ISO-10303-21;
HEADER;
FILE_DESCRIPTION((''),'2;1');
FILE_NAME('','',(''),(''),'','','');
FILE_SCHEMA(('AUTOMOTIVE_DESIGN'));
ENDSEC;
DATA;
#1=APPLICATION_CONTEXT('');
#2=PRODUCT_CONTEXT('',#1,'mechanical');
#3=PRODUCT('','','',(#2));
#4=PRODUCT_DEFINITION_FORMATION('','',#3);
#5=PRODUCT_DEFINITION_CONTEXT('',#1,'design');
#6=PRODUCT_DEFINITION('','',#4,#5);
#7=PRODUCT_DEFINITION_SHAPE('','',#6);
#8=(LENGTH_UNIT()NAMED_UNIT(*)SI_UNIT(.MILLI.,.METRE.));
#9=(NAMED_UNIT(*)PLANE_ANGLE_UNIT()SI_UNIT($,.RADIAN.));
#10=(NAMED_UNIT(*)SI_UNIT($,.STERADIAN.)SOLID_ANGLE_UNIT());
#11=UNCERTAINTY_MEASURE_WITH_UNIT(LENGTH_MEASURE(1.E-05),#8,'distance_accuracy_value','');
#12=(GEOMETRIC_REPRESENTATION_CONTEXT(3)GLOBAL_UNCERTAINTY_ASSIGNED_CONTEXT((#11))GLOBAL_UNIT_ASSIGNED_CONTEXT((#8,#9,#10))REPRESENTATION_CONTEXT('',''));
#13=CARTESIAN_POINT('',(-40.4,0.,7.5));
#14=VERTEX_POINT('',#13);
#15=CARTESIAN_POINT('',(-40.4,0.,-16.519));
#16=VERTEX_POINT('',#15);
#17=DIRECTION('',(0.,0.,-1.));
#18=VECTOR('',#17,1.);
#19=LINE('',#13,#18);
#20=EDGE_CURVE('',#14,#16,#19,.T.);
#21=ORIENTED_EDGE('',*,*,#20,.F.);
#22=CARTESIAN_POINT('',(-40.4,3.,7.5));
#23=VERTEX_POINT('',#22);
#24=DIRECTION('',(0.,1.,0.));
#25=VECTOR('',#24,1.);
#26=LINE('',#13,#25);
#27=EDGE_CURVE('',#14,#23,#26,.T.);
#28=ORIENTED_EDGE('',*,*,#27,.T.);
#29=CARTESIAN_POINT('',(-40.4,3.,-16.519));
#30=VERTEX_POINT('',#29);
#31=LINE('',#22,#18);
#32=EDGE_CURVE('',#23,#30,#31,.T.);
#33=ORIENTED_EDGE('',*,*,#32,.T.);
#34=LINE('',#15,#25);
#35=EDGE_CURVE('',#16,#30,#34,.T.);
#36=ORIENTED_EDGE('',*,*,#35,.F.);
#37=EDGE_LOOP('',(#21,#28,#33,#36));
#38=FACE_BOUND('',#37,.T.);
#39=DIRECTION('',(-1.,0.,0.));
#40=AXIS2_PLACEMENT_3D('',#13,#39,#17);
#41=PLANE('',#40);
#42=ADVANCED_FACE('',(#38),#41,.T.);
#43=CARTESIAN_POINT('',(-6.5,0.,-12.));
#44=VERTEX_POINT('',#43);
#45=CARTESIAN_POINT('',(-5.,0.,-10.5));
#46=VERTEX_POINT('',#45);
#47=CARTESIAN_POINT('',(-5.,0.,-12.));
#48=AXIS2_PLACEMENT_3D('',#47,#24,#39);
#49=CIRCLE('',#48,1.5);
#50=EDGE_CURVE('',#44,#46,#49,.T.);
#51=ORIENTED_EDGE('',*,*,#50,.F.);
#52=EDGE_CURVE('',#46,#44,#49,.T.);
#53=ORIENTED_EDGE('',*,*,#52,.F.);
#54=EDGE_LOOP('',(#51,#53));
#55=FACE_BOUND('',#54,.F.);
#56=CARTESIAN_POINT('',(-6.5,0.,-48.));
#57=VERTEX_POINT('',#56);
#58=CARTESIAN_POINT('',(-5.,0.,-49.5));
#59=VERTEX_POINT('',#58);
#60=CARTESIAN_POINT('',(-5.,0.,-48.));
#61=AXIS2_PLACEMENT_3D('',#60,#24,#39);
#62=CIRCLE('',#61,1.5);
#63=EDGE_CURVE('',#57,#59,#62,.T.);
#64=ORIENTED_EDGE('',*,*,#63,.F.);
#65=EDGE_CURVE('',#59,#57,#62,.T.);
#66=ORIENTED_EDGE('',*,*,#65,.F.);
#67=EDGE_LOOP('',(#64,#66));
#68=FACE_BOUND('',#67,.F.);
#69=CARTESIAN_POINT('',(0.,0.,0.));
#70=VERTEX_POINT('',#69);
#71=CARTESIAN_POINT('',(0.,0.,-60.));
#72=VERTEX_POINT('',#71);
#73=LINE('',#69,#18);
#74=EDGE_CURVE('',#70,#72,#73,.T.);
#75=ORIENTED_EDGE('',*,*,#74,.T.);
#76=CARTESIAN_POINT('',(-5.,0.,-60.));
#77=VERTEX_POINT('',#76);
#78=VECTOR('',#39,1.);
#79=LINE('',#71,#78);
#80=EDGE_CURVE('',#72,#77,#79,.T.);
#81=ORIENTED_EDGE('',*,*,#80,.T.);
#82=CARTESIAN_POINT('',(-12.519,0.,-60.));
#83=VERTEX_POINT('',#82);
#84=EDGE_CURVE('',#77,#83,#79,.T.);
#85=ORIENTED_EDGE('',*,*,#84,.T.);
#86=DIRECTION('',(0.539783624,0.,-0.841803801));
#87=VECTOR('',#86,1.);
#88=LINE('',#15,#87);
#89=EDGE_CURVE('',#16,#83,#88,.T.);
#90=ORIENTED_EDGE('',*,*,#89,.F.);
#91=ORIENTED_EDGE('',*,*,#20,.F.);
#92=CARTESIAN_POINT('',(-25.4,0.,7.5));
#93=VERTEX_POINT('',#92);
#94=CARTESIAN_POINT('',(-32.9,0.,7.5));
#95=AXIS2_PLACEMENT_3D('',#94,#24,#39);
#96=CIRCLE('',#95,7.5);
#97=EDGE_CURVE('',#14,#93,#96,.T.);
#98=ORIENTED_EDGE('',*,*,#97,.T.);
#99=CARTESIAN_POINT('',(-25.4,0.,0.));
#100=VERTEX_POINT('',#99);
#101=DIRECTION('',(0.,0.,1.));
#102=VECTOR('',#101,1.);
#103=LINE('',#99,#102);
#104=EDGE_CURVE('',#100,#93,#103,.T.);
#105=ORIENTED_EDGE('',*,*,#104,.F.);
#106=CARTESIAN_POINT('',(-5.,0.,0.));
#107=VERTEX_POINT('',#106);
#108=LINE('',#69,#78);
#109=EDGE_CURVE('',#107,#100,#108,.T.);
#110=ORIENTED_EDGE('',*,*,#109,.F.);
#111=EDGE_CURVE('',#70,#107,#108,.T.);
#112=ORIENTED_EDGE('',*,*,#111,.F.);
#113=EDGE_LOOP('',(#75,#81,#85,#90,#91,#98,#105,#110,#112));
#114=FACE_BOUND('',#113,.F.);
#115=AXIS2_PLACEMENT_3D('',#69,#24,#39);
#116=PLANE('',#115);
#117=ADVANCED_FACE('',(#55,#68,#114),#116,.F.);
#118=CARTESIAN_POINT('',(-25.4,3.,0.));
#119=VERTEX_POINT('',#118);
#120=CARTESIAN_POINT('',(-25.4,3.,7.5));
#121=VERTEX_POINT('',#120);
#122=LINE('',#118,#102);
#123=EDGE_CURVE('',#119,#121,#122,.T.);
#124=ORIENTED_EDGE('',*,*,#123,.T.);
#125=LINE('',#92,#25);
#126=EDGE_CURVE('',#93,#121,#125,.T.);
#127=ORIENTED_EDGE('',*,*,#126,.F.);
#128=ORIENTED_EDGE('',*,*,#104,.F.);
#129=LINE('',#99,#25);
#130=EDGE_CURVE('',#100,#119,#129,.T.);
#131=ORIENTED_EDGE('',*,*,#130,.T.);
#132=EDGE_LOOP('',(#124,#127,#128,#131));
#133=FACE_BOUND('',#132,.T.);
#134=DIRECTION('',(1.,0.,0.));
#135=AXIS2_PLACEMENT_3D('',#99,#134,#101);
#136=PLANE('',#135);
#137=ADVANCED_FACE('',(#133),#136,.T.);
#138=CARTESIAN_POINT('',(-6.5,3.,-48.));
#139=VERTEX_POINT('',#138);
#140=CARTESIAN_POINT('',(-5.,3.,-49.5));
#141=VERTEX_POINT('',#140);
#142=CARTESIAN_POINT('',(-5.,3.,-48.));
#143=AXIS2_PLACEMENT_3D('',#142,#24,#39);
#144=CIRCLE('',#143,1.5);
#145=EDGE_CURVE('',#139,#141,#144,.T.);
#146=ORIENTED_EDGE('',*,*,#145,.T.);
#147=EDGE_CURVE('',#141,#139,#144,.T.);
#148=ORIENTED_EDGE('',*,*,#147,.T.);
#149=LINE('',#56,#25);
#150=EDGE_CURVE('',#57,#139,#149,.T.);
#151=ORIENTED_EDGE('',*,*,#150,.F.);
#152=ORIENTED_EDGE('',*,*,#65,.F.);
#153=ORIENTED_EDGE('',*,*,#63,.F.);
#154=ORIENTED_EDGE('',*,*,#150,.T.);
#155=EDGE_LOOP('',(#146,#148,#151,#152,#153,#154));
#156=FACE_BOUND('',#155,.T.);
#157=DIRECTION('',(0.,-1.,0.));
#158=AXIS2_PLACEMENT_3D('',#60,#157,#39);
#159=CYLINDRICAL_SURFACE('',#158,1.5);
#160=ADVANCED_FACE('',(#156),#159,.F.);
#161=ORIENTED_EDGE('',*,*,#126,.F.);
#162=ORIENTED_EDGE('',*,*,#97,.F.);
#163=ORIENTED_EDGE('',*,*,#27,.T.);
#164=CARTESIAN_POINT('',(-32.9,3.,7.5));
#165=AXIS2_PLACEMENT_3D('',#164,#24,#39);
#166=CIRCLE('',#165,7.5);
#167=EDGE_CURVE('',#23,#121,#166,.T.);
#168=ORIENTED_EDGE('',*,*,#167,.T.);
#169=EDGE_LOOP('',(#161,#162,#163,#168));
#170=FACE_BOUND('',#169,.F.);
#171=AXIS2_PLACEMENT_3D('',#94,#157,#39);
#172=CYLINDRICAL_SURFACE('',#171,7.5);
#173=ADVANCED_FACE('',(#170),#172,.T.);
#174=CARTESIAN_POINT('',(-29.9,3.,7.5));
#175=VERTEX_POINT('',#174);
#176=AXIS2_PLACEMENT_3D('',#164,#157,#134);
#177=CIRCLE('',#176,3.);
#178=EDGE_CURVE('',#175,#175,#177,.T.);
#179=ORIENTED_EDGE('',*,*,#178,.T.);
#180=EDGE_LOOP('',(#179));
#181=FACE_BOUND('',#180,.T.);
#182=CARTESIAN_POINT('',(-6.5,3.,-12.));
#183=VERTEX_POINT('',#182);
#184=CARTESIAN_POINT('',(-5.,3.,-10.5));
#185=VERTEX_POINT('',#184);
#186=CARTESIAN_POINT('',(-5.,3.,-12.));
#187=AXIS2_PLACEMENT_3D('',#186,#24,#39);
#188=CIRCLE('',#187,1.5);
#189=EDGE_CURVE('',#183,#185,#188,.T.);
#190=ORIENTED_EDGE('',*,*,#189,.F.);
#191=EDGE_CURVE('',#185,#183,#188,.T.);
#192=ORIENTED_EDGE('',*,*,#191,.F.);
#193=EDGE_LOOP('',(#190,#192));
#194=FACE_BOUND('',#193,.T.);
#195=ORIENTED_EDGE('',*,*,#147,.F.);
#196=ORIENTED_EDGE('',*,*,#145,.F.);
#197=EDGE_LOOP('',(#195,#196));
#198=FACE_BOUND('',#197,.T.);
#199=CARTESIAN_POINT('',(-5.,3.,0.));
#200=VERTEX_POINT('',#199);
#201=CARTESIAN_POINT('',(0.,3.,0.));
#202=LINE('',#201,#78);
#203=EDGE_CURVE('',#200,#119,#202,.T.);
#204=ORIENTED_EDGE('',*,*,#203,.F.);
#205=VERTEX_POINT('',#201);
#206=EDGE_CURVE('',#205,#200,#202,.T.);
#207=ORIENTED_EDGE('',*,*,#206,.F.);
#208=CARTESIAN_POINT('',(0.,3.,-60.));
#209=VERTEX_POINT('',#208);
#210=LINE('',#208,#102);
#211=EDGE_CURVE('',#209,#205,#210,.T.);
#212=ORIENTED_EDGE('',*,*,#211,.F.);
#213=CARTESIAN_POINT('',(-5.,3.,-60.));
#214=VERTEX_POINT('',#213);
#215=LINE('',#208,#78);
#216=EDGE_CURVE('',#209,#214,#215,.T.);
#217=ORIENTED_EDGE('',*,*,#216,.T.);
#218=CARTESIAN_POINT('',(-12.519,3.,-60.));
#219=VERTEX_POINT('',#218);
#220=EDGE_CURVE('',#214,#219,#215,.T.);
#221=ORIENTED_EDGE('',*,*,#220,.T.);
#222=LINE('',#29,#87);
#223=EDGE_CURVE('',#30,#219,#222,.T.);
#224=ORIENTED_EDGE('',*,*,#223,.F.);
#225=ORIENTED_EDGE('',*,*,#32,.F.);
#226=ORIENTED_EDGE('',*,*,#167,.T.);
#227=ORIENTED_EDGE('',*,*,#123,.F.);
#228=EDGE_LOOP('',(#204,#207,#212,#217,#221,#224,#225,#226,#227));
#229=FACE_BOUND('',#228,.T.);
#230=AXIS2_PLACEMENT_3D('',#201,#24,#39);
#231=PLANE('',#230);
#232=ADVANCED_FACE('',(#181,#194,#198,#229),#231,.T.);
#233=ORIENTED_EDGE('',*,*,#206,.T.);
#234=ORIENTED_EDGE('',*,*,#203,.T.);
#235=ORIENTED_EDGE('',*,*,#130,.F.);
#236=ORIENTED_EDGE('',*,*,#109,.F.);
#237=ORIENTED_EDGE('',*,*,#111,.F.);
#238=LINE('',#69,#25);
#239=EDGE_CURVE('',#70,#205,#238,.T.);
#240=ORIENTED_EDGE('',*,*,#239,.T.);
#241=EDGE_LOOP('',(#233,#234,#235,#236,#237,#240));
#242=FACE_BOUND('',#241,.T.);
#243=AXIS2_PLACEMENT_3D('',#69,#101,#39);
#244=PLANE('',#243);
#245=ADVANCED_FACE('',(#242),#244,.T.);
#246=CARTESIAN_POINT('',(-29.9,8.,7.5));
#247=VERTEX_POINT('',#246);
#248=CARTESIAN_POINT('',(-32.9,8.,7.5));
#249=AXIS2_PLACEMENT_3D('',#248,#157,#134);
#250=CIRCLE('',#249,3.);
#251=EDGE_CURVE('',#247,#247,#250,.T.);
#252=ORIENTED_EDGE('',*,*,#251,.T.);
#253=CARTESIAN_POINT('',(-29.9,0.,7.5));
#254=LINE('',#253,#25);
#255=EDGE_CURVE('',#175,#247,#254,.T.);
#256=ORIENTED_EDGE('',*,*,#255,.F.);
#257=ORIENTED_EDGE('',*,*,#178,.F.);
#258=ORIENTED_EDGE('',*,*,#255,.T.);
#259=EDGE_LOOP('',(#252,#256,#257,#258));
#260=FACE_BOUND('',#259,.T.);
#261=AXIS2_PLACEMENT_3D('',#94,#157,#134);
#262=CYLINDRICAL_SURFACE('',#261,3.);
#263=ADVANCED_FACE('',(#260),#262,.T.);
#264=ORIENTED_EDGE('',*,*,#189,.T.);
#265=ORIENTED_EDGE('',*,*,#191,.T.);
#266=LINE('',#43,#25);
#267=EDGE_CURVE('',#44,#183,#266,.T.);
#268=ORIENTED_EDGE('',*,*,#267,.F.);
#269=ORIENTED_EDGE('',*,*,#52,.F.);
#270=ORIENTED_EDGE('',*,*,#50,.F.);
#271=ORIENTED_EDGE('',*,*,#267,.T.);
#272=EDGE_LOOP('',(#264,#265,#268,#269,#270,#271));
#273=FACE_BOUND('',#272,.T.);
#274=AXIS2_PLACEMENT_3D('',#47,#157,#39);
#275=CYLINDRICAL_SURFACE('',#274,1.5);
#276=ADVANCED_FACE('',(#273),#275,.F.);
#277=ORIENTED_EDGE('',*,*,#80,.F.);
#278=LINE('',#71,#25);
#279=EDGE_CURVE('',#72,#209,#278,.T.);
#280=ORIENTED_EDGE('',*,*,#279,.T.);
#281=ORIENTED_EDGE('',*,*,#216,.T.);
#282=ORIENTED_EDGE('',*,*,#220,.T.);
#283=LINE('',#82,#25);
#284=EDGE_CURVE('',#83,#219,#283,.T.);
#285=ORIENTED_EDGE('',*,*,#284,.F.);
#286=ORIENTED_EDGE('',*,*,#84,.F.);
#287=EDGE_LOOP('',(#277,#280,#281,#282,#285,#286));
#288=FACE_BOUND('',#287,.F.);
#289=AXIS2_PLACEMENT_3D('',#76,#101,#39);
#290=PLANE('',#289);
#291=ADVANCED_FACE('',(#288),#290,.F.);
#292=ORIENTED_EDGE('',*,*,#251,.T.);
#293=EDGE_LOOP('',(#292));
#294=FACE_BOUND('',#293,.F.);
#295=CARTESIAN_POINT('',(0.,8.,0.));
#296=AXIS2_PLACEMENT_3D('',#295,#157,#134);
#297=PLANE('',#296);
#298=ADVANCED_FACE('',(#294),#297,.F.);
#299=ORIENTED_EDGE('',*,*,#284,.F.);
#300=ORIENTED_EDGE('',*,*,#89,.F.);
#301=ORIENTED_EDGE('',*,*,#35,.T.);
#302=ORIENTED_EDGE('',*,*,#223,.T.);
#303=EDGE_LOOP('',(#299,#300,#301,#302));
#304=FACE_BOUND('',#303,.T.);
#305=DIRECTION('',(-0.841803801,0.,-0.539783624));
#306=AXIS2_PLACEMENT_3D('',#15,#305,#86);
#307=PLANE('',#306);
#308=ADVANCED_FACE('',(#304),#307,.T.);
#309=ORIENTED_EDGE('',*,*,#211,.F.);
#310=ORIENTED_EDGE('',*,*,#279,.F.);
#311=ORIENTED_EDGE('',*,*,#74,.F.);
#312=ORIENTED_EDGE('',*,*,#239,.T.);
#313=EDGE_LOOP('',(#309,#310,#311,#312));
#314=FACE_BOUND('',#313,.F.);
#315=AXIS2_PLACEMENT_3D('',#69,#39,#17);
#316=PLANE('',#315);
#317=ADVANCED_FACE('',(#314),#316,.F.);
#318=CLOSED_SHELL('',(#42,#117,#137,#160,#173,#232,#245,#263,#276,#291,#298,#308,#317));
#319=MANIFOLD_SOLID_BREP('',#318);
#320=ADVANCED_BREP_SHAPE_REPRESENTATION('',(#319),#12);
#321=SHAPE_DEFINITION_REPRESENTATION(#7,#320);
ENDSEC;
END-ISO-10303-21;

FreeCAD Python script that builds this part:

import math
import FreeCAD as App
import Part
import Sketcher
from FreeCAD import Vector

doc = App.newDocument("Part")
body = doc.addObject("PartDesign::Body", "Body")

sketch1 = body.newObject("Sketcher::SketchObject", "Sketch")
sketch1.AttachmentSupport = (doc.getObject("XZ_Plane"), [""])
sketch1.MapMode = "FlatFace"
sketch1.addGeometry([
    Part.LineSegment(Vector(-5, 0, 0), Vector(0, 0, 0)),
    Part.LineSegment(Vector(0, 0, 0), Vector(0, -60, 0)),
    Part.LineSegment(Vector(0, -60, 0), Vector(-5, -60, 0)),
    Part.LineSegment(Vector(-5, -60, 0), Vector(-12.5, -60, 0)),
    Part.LineSegment(Vector(-12.5, -60, 0), Vector(-40.4, -16.5, 0)),
    Part.LineSegment(Vector(-40.4, -16.5, 0), Vector(-40.4, 7.5, 0)),
    Part.ArcOfCircle(Part.Circle(Vector(-32.9, 7.5, 0), Vector(0, 0, 1), 7.5), math.radians(0), math.radians(180)),
    Part.LineSegment(Vector(-25.4, 7.5, 0), Vector(-25.4, 0, 0)),
    Part.LineSegment(Vector(-25.4, 0, 0), Vector(-5, 0, 0)),
    Part.Circle(Vector(-5, -48, 0), Vector(0, 0, 1), 1.5),
    Part.Circle(Vector(-5, -12, 0), Vector(0, 0, 1), 1.5),
    Part.ArcOfCircle(Part.Circle(Vector(-32.9, 7.5, 0), Vector(0, 0, 1), 3), math.radians(0), math.radians(180)),
    Part.LineSegment(Vector(-35.9, 7.5, 0), Vector(-29.9, 7.5, 0)),
], False)
sketch1.addConstraint([
    Sketcher.Constraint("Coincident", 0, 2, 1, 1),
    Sketcher.Constraint("Coincident", 1, 2, 2, 1),
    Sketcher.Constraint("Coincident", 2, 2, 3, 1),
    Sketcher.Constraint("Coincident", 3, 2, 4, 1),
    Sketcher.Constraint("Coincident", 4, 2, 5, 1),
    Sketcher.Constraint("Tangent", 5, 2, 6, 2),
    Sketcher.Constraint("Tangent", 6, 1, 7, 1),
    Sketcher.Constraint("Coincident", 7, 2, 8, 1),
    Sketcher.Constraint("Coincident", 8, 2, 0, 1),
    Sketcher.Constraint("Coincident", 11, 1, 12, 2),
    Sketcher.Constraint("Coincident", 12, 1, 11, 2),
    Sketcher.Constraint("Horizontal", 0),
    Sketcher.Constraint("Vertical", 1),
    Sketcher.Constraint("Horizontal", 2),
    Sketcher.Constraint("Horizontal", 3),
    Sketcher.Constraint("Vertical", 5),
    Sketcher.Constraint("Vertical", 7),
    Sketcher.Constraint("Horizontal", 8),
    Sketcher.Constraint("Horizontal", 12),
    Sketcher.Constraint("Coincident", 0, 2, -1, 1),
    Sketcher.Constraint("Coincident", 11, 3, 6, 3),
    Sketcher.Constraint("Equal", 9, 10),
    Sketcher.Constraint("Horizontal", 6, 1, 11, 1),
    Sketcher.Constraint("Vertical", 9, 3, 10, 3),
    Sketcher.Constraint("Vertical", 10, 3, 2, 2),
    Sketcher.Constraint("Vertical", 2, 2, 8, 2),
    Sketcher.Constraint("Diameter", 9, 3.0),
    Sketcher.Constraint("Radius", 11, 3.0),
    Sketcher.Constraint("Radius", 6, 7.5),
    Sketcher.Constraint("DistanceX", 0, 1, 0, 2, 5.0),
    Sketcher.Constraint("DistanceY", 1, 2, 1, 1, 60.0),
    Sketcher.Constraint("DistanceY", 7, 2, 7, 1, 7.5),
    Sketcher.Constraint("DistanceY", 10, 3, -1, 1, 12.0),
    Sketcher.Constraint("DistanceY", 1, 2, 9, 3, 12.0),
    Sketcher.Constraint("DistanceX", 6, 1, -1, 1, 25.4),
    Sketcher.Constraint("DistanceY", 5, 1, 5, 2, 24.019),
    Sketcher.Constraint("DistanceX", 3, 2, -1, 1, 12.519),
])
pad1 = body.newObject("PartDesign::Pad", "Pad")
pad1.Profile = sketch1
pad1.Length = 3
pad1.Reversed = True

sketch2 = body.newObject("Sketcher::SketchObject", "Sketch001")
sketch2.AttachmentSupport = (doc.getObject("XZ_Plane"), [""])
sketch2.MapMode = "FlatFace"
sketch2.addGeometry(Part.Circle(Vector(-32.9, 7.5, 0), Vector(0, 0, 1), 3), False)
sketch2.addConstraint([
    Sketcher.Constraint("Diameter", 0, 6.0),
    Sketcher.Constraint("DistanceX", 0, 3, -1, 1, 32.9),
    Sketcher.Constraint("DistanceY", -1, 1, 0, 3, 7.5),
])
pad2 = body.newObject("PartDesign::Pad", "Pad001")
pad2.Profile = sketch2
pad2.Length = 8
pad2.Reversed = True

doc.recompute()
